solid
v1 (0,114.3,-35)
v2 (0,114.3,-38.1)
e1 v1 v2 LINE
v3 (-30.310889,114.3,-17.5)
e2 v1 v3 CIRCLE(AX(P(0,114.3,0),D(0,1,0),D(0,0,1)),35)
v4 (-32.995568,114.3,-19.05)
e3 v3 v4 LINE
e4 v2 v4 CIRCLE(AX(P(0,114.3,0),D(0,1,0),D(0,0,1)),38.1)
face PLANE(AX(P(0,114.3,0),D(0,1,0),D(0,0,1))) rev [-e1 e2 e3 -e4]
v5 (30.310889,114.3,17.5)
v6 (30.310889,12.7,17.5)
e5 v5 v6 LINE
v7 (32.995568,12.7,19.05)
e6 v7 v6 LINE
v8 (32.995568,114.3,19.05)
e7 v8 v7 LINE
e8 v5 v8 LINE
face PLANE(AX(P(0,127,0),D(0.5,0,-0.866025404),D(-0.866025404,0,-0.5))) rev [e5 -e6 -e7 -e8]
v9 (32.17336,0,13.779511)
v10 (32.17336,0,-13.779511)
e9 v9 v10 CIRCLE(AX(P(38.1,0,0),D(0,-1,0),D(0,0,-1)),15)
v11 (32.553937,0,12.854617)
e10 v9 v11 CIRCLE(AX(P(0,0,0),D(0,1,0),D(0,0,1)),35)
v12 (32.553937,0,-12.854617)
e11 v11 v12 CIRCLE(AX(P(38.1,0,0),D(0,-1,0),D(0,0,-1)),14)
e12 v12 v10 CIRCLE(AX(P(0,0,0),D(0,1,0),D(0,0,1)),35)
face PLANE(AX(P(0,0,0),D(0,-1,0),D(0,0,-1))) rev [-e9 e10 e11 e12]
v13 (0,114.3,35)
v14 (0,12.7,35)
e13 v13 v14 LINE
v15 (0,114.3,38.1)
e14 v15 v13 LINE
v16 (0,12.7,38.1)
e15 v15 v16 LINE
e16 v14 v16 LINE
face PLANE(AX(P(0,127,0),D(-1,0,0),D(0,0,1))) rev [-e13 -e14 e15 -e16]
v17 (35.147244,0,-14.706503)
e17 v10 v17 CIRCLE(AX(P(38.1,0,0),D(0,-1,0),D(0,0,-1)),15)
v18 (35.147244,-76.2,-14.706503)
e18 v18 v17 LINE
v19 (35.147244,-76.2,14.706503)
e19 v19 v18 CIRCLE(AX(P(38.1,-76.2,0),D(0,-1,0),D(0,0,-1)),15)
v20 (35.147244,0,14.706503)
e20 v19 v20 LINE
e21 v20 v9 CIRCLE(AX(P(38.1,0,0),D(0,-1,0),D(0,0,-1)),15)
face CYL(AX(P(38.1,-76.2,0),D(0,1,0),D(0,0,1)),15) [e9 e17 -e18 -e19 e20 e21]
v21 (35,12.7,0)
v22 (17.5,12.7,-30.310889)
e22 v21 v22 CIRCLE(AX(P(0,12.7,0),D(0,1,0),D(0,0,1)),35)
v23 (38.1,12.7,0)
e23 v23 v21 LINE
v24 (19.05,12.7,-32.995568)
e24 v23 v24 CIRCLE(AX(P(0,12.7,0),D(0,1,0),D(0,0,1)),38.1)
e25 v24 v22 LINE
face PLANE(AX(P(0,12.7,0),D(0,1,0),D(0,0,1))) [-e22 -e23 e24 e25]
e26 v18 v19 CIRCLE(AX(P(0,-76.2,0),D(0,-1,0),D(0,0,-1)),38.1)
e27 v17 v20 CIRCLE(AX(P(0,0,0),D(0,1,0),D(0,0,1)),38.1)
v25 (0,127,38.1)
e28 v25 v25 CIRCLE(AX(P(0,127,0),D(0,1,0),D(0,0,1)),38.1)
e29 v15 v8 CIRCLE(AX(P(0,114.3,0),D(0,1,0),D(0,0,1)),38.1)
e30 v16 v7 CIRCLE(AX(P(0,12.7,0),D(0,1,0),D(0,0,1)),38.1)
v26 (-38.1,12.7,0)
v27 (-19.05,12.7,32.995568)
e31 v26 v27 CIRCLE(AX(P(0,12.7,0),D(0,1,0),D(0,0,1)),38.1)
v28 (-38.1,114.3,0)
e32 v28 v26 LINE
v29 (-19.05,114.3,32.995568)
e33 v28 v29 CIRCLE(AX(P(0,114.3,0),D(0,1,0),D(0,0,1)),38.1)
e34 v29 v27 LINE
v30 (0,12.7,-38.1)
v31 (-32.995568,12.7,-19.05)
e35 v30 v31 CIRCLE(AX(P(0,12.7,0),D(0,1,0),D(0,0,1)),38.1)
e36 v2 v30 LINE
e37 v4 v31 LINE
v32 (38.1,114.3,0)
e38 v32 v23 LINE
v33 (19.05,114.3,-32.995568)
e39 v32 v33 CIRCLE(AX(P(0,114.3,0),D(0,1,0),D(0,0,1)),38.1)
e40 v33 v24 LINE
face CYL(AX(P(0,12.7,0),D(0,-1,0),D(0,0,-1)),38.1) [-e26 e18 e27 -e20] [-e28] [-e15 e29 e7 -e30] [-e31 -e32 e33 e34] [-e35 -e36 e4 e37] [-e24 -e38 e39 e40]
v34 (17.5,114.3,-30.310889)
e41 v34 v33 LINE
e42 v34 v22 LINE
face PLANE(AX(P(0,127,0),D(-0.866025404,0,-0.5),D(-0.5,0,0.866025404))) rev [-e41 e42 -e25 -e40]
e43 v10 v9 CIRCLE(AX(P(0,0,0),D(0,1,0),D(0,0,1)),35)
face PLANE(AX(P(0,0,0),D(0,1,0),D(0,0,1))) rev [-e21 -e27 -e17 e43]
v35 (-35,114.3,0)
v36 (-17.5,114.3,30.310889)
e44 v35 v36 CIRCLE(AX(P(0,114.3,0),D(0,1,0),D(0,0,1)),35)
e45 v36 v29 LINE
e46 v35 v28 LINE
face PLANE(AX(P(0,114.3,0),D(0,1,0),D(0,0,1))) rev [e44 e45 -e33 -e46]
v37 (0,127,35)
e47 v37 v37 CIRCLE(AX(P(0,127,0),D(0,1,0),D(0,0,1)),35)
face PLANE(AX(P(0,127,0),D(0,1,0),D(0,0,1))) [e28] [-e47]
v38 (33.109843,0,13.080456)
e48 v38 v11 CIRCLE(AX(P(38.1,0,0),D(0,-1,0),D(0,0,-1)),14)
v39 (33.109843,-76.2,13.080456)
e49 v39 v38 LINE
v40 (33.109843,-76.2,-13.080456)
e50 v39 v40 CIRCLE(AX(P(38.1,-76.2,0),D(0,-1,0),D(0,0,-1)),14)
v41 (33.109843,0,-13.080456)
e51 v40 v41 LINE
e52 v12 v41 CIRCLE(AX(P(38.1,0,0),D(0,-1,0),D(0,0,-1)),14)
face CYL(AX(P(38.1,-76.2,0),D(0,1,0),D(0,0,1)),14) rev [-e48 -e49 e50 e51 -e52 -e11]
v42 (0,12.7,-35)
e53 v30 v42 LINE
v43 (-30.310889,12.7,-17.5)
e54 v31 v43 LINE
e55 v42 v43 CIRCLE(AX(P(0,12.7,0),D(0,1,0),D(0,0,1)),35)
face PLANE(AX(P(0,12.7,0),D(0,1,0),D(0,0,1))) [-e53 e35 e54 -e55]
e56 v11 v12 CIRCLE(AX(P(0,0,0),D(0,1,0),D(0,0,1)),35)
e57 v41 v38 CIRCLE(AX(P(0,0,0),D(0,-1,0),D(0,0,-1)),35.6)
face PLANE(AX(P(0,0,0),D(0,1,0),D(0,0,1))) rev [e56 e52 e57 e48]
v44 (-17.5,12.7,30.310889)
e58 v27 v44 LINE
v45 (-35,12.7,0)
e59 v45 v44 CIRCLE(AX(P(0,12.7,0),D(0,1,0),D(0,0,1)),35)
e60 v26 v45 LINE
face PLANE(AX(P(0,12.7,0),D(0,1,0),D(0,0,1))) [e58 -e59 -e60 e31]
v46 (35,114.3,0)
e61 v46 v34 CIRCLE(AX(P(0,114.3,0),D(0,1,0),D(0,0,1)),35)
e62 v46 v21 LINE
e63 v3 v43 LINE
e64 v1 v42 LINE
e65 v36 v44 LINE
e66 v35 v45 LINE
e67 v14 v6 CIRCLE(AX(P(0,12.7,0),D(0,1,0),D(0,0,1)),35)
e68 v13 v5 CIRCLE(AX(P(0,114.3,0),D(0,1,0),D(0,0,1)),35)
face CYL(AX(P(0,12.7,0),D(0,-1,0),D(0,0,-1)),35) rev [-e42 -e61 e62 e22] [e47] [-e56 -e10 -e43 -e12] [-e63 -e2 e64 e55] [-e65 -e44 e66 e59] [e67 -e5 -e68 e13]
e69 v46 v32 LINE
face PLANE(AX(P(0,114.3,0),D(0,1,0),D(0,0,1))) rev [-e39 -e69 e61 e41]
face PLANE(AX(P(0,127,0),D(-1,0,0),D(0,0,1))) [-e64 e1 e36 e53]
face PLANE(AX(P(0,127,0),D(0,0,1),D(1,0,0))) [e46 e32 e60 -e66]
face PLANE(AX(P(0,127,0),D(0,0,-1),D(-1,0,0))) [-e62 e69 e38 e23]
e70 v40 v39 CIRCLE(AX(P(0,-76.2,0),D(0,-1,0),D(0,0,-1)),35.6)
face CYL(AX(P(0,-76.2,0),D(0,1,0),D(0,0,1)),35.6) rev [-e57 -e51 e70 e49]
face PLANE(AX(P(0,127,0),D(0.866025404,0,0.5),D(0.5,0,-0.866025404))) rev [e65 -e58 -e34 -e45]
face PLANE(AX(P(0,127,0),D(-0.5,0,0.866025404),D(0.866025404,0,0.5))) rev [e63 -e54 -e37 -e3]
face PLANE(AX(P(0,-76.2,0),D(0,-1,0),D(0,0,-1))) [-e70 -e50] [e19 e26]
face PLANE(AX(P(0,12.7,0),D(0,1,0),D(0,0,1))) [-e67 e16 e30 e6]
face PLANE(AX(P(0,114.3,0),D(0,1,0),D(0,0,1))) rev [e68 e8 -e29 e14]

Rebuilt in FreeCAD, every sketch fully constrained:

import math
import FreeCAD as App
import Part
import Sketcher
from FreeCAD import Vector
Q = App.Units.Quantity

doc = App.newDocument("Part")
body = doc.addObject("PartDesign::Body", "Body")

# Sketch on XZ plane
sketch1 = body.newObject("Sketcher::SketchObject", "Sketch")
sketch1.AttachmentSupport = (doc.getObject("XZ_Plane"), [""])
sketch1.MapMode = "FlatFace"
sketch1.addGeometry(Part.ArcOfCircle(Part.Circle(Vector(0, 0, 0), Vector(0, 0, 1), 38), math.radians(120), math.radians(180)), False)
sketch1.addGeometry(Part.ArcOfCircle(Part.Circle(Vector(0, 0, 0), Vector(0, 0, 1), 38), math.radians(90), math.radians(120)), False)
sketch1.addGeometry(Part.ArcOfCircle(Part.Circle(Vector(0, 0, 0), Vector(0, 0, 1), 38), math.radians(30), math.radians(90)), False)
sketch1.addGeometry(Part.ArcOfCircle(Part.Circle(Vector(0, 0, 0), Vector(0, 0, 1), 38), math.radians(0), math.radians(30)), False)
sketch1.addGeometry(Part.ArcOfCircle(Part.Circle(Vector(0, 0, 0), Vector(0, 0, 1), 38), math.radians(-60), math.radians(0)), False)
sketch1.addGeometry(Part.ArcOfCircle(Part.Circle(Vector(0, 0, 0), Vector(0, 0, 1), 38), math.radians(-90), math.radians(-60)), False)
sketch1.addGeometry(Part.ArcOfCircle(Part.Circle(Vector(0, 0, 0), Vector(0, 0, 1), 38), math.radians(-150), math.radians(-90)), False)
sketch1.addGeometry(Part.ArcOfCircle(Part.Circle(Vector(0, 0, 0), Vector(0, 0, 1), 38), math.radians(180), math.radians(210)), False)
sketch1.addGeometry(Part.ArcOfCircle(Part.Circle(Vector(0, 0, 0), Vector(0, 0, 1), 35), math.radians(-60), math.radians(0)), False)
sketch1.addGeometry(Part.ArcOfCircle(Part.Circle(Vector(0, 0, 0), Vector(0, 0, 1), 35), math.radians(0), math.radians(30)), False)
sketch1.addGeometry(Part.ArcOfCircle(Part.Circle(Vector(0, 0, 0), Vector(0, 0, 1), 35), math.radians(30), math.radians(90)), False)
sketch1.addGeometry(Part.ArcOfCircle(Part.Circle(Vector(0, 0, 0), Vector(0, 0, 1), 35), math.radians(90), math.radians(120)), False)
sketch1.addGeometry(Part.ArcOfCircle(Part.Circle(Vector(0, 0, 0), Vector(0, 0, 1), 35), math.radians(120), math.radians(180)), False)
sketch1.addGeometry(Part.ArcOfCircle(Part.Circle(Vector(0, 0, 0), Vector(0, 0, 1), 35), math.radians(180), math.radians(210)), False)
sketch1.addGeometry(Part.ArcOfCircle(Part.Circle(Vector(0, 0, 0), Vector(0, 0, 1), 35), math.radians(-150), math.radians(-90)), False)
sketch1.addGeometry(Part.ArcOfCircle(Part.Circle(Vector(0, 0, 0), Vector(0, 0, 1), 35), math.radians(-90), math.radians(-60)), False)
sketch1.addConstraint(Sketcher.Constraint("Tangent", 0, 1, 1, 2))
sketch1.addConstraint(Sketcher.Constraint("Tangent", 1, 1, 2, 2))
sketch1.addConstraint(Sketcher.Constraint("Tangent", 2, 1, 3, 2))
sketch1.addConstraint(Sketcher.Constraint("Tangent", 3, 1, 4, 2))
sketch1.addConstraint(Sketcher.Constraint("Tangent", 4, 1, 5, 2))
sketch1.addConstraint(Sketcher.Constraint("Tangent", 5, 1, 6, 2))
sketch1.addConstraint(Sketcher.Constraint("Tangent", 6, 1, 7, 2))
sketch1.addConstraint(Sketcher.Constraint("Tangent", 7, 1, 0, 2))
sketch1.addConstraint(Sketcher.Constraint("Tangent", 8, 2, 9, 1))
sketch1.addConstraint(Sketcher.Constraint("Tangent", 9, 2, 10, 1))
sketch1.addConstraint(Sketcher.Constraint("Tangent", 10, 2, 11, 1))
sketch1.addConstraint(Sketcher.Constraint("Tangent", 11, 2, 12, 1))
sketch1.addConstraint(Sketcher.Constraint("Tangent", 12, 2, 13, 1))
sketch1.addConstraint(Sketcher.Constraint("Tangent", 13, 2, 14, 1))
sketch1.addConstraint(Sketcher.Constraint("Tangent", 14, 2, 15, 1))
sketch1.addConstraint(Sketcher.Constraint("Tangent", 15, 2, 8, 1))
sketch1.addConstraint(Sketcher.Constraint("Coincident", 0, 3, -1, 1))
sketch1.addConstraint(Sketcher.Constraint("Coincident", 2, 3, -1, 1))
sketch1.addConstraint(Sketcher.Constraint("Coincident", 4, 3, -1, 1))
sketch1.addConstraint(Sketcher.Constraint("Coincident", 8, 3, -1, 1))
sketch1.addConstraint(Sketcher.Constraint("Coincident", 10, 3, -1, 1))
sketch1.addConstraint(Sketcher.Constraint("Coincident", 12, 3, -1, 1))
sketch1.addConstraint(Sketcher.Constraint("Equal", 4, 5))
sketch1.addConstraint(Sketcher.Constraint("Equal", 12, 13))
sketch1.addConstraint(Sketcher.Constraint("PointOnObject", 1, 1, -2))
sketch1.addConstraint(Sketcher.Constraint("PointOnObject", 3, 1, -1))
sketch1.addConstraint(Sketcher.Constraint("PointOnObject", 5, 1, -2))
sketch1.addConstraint(Sketcher.Constraint("PointOnObject", 7, 1, -1))
sketch1.addConstraint(Sketcher.Constraint("PointOnObject", 8, 2, -1))
sketch1.addConstraint(Sketcher.Constraint("PointOnObject", 10, 2, -2))
sketch1.addConstraint(Sketcher.Constraint("PointOnObject", 12, 2, -1))
sketch1.addConstraint(Sketcher.Constraint("PointOnObject", 14, 2, -2))
sketch1.addConstraint(Sketcher.Constraint("Radius", 8, Q("35 mm")))
sketch1.addConstraint(Sketcher.Constraint("Radius", 0, Q("38.1 mm")))
sketch1.addConstraint(Sketcher.Constraint("DistanceY", -1, 1, 9, 2, Q("17.5 mm")))
sketch1.addConstraint(Sketcher.Constraint("DistanceX", 11, 2, -1, 1, Q("17.5 mm")))
sketch1.addConstraint(Sketcher.Constraint("DistanceY", 13, 2, -1, 1, Q("17.5 mm")))
sketch1.addConstraint(Sketcher.Constraint("DistanceX", -1, 1, 15, 2, Q("17.5 mm")))
sketch1.addConstraint(Sketcher.Constraint("DistanceX", 0, 1, -1, 1, Q("19.05 mm")))
sketch1.addConstraint(Sketcher.Constraint("DistanceY", -1, 1, 2, 1, Q("19.05 mm")))
sketch1.addConstraint(Sketcher.Constraint("DistanceX", -1, 1, 4, 1, Q("19.05 mm")))
sketch1.addConstraint(Sketcher.Constraint("DistanceY", 6, 1, -1, 1, Q("19.05 mm")))
pad1 = body.newObject("PartDesign::Pad", "Pad")
pad1.Profile = sketch1
pad1.Length = 12.7
pad1.Reversed = True

# Sketch on XZ plane
sketch2 = body.newObject("Sketcher::SketchObject", "Sketch001")
sketch2.AttachmentSupport = (doc.getObject("XZ_Plane"), [""])
sketch2.MapMode = "FlatFace"
sketch2.addGeometry(Part.ArcOfCircle(Part.Circle(Vector(0, 0, 0), Vector(0, 0, 1), 38.1), math.radians(90), math.radians(120)), False)
sketch2.addGeometry(Part.LineSegment(Vector(0, 38.1, 0), Vector(0, 35, 0)), False)
sketch2.addGeometry(Part.ArcOfCircle(Part.Circle(Vector(0, 0, 0), Vector(0, 0, 1), 35), math.radians(90), math.radians(120)), False)
sketch2.addGeometry(Part.LineSegment(Vector(-17.5, 30.3, 0), Vector(-19.1, 33, 0)), False)
sketch2.addGeometry(Part.LineSegment(Vector(30.3, 17.5, 0), Vector(33, 19.1, 0)), False)
sketch2.addGeometry(Part.ArcOfCircle(Part.Circle(Vector(0, 0, 0), Vector(0, 0, 1), 38.1), math.radians(0), math.radians(30)), False)
sketch2.addGeometry(Part.LineSegment(Vector(38.1, 0, 0), Vector(35, 0, 0)), False)
sketch2.addGeometry(Part.ArcOfCircle(Part.Circle(Vector(0, 0, 0), Vector(0, 0, 1), 35), math.radians(0), math.radians(30)), False)
sketch2.addGeometry(Part.LineSegment(Vector(17.5, -30.3, 0), Vector(19.1, -33, 0)), False)
sketch2.addGeometry(Part.ArcOfCircle(Part.Circle(Vector(0, 0, 0), Vector(0, 0, 1), 38.1), math.radians(-90), math.radians(-60)), False)
sketch2.addGeometry(Part.LineSegment(Vector(0, -38.1, 0), Vector(0, -35, 0)), False)
sketch2.addGeometry(Part.ArcOfCircle(Part.Circle(Vector(0, 0, 0), Vector(0, 0, 1), 35), math.radians(-90), math.radians(-60)), False)
sketch2.addGeometry(Part.ArcOfCircle(Part.Circle(Vector(0, 0, 0), Vector(0, 0, 1), 38.1), math.radians(180), math.radians(210)), False)
sketch2.addGeometry(Part.LineSegment(Vector(-38.1, 0, 0), Vector(-35, 0, 0)), False)
sketch2.addGeometry(Part.ArcOfCircle(Part.Circle(Vector(0, 0, 0), Vector(0, 0, 1), 35), math.radians(180), math.radians(210)), False)
sketch2.addGeometry(Part.LineSegment(Vector(-30.3, -17.5, 0), Vector(-33, -19.1, 0)), False)
sketch2.addConstraint(Sketcher.Constraint("Coincident", 0, 1, 1, 1))
sketch2.addConstraint(Sketcher.Constraint("Coincident", 1, 2, 2, 1))
sketch2.addConstraint(Sketcher.Constraint("Coincident", 2, 2, 3, 1))
sketch2.addConstraint(Sketcher.Constraint("Coincident", 3, 2, 0, 2))
sketch2.addConstraint(Sketcher.Constraint("Coincident", 4, 2, 5, 2))
sketch2.addConstraint(Sketcher.Constraint("Coincident", 5, 1, 6, 1))
sketch2.addConstraint(Sketcher.Constraint("Coincident", 6, 2, 7, 1))
sketch2.addConstraint(Sketcher.Constraint("Coincident", 7, 2, 4, 1))
sketch2.addConstraint(Sketcher.Constraint("Coincident", 8, 2, 9, 2))
sketch2.addConstraint(Sketcher.Constraint("Coincident", 9, 1, 10, 1))
sketch2.addConstraint(Sketcher.Constraint("Coincident", 10, 2, 11, 1))
sketch2.addConstraint(Sketcher.Constraint("Coincident", 11, 2, 8, 1))
sketch2.addConstraint(Sketcher.Constraint("Coincident", 12, 1, 13, 1))
sketch2.addConstraint(Sketcher.Constraint("Coincident", 13, 2, 14, 1))
sketch2.addConstraint(Sketcher.Constraint("Coincident", 14, 2, 15, 1))
sketch2.addConstraint(Sketcher.Constraint("Coincident", 15, 2, 12, 2))
sketch2.addConstraint(Sketcher.Constraint("Vertical", 1))
sketch2.addConstraint(Sketcher.Constraint("Horizontal", 6))
sketch2.addConstraint(Sketcher.Constraint("Vertical", 10))
sketch2.addConstraint(Sketcher.Constraint("Horizontal", 13))
sketch2.addConstraint(Sketcher.Constraint("Coincident", 0, 3, -1, 1))
sketch2.addConstraint(Sketcher.Constraint("Coincident", 2, 3, -1, 1))
sketch2.addConstraint(Sketcher.Constraint("Coincident", 5, 3, -1, 1))
sketch2.addConstraint(Sketcher.Constraint("Coincident", 7, 3, -1, 1))
sketch2.addConstraint(Sketcher.Constraint("Coincident", 9, 3, -1, 1))
sketch2.addConstraint(Sketcher.Constraint("Coincident", 11, 3, -1, 1))
sketch2.addConstraint(Sketcher.Constraint("Coincident", 12, 3, -1, 1))
sketch2.addConstraint(Sketcher.Constraint("Coincident", 14, 3, -1, 1))
sketch2.addConstraint(Sketcher.Constraint("Equal", 0, 5))
sketch2.addConstraint(Sketcher.Constraint("Equal", 2, 7))
sketch2.addConstraint(Sketcher.Constraint("Equal", 5, 9))
sketch2.addConstraint(Sketcher.Constraint("Equal", 7, 11))
sketch2.addConstraint(Sketcher.Constraint("Equal", 9, 12))
sketch2.addConstraint(Sketcher.Constraint("Equal", 11, 14))
sketch2.addConstraint(Sketcher.Constraint("PointOnObject", 0, 1, -2))
sketch2.addConstraint(Sketcher.Constraint("PointOnObject", 5, 1, -1))
sketch2.addConstraint(Sketcher.Constraint("PointOnObject", 9, 1, -2))
sketch2.addConstraint(Sketcher.Constraint("PointOnObject", 12, 1, -1))
sketch2.addConstraint(Sketcher.Constraint("Perpendicular", 3, 4))
sketch2.addConstraint(Sketcher.Constraint("Perpendicular", 4, 8))
sketch2.addConstraint(Sketcher.Constraint("Perpendicular", 8, 15))
sketch2.addConstraint(Sketcher.Constraint("Radius", 2, Q("35 mm")))
sketch2.addConstraint(Sketcher.Constraint("Radius", 0, Q("38.1 mm")))
sketch2.addConstraint(Sketcher.Constraint("Angle", 3, Q("120 deg")))
sketch2.addConstraint(Sketcher.Constraint("DistanceX", 2, 2, -1, 1, Q("17.5 mm")))
sketch2.addConstraint(Sketcher.Constraint("DistanceY", -1, 1, 7, 2, Q("17.5 mm")))
sketch2.addConstraint(Sketcher.Constraint("DistanceX", -1, 1, 11, 2, Q("17.5 mm")))
sketch2.addConstraint(Sketcher.Constraint("DistanceY", 14, 2, -1, 1, Q("17.5 mm")))
pad2 = body.newObject("PartDesign::Pad", "Pad001")
pad2.Profile = sketch2
pad2.Length = 127
pad2.Reversed = True

# Sketch on XZ plane
sketch3 = body.newObject("Sketcher::SketchObject", "Sketch002")
sketch3.AttachmentSupport = (doc.getObject("XZ_Plane"), [""])
sketch3.MapMode = "FlatFace"
sketch3.AttachmentOffset = App.Placement(Vector(0, 0, -114.3), App.Rotation())
sketch3.addGeometry(Part.Circle(Vector(0, 0, 0), Vector(0, 0, 1), 38), False)
sketch3.addGeometry(Part.Circle(Vector(0, 0, 0), Vector(0, 0, 1), 35), False)
sketch3.addConstraint(Sketcher.Constraint("Coincident", 0, 3, -1, 1))
sketch3.addConstraint(Sketcher.Constraint("Coincident", 1, 3, -1, 1))
sketch3.addConstraint(Sketcher.Constraint("Diameter", 1, Q("70 mm")))
sketch3.addConstraint(Sketcher.Constraint("Diameter", 0, Q("76.2 mm")))
pad3 = body.newObject("PartDesign::Pad", "Pad002")
pad3.Profile = sketch3
pad3.Length = 12.7
pad3.Reversed = True

# Sketch on XZ plane
sketch4 = body.newObject("Sketcher::SketchObject", "Sketch003")
sketch4.AttachmentSupport = (doc.getObject("XZ_Plane"), [""])
sketch4.MapMode = "FlatFace"
sketch4.AttachmentOffset = App.Placement(Vector(0, 0, 76.2), App.Rotation())
sketch4.addGeometry(Part.ArcOfCircle(Part.Circle(Vector(38, 0, 0), Vector(0, 0, 1), 15), math.radians(101), math.radians(259)), False)
sketch4.addGeometry(Part.ArcOfCircle(Part.Circle(Vector(0, 0, 0), Vector(0, 0, 1), 38), math.radians(-23), math.radians(23)), False)
sketch4.addGeometry(Part.ArcOfCircle(Part.Circle(Vector(38, 0, 0), Vector(0, 0, 1), 14), math.radians(111), math.radians(249)), False)
sketch4.addGeometry(Part.ArcOfCircle(Part.Circle(Vector(0, 0, 0), Vector(0, 0, 1), 36), math.radians(-22), math.radians(22)), False)
sketch4.addConstraint(Sketcher.Constraint("Coincident", 0, 1, 1, 2))
sketch4.addConstraint(Sketcher.Constraint("Coincident", 1, 1, 0, 2))
sketch4.addConstraint(Sketcher.Constraint("Coincident", 2, 1, 3, 2))
sketch4.addConstraint(Sketcher.Constraint("Coincident", 3, 1, 2, 2))
sketch4.addConstraint(Sketcher.Constraint("Coincident", 1, 3, -1, 1))
sketch4.addConstraint(Sketcher.Constraint("Coincident", 3, 3, -1, 1))
sketch4.addConstraint(Sketcher.Constraint("Coincident", 2, 3, 0, 3))
sketch4.addConstraint(Sketcher.Constraint("PointOnObject", 0, 3, -1))
sketch4.addConstraint(Sketcher.Constraint("Radius", 0, Q("15 mm")))
sketch4.addConstraint(Sketcher.Constraint("Radius", 2, Q("14 mm")))
sketch4.addConstraint(Sketcher.Constraint("Radius", 1, Q("38.1 mm")))
sketch4.addConstraint(Sketcher.Constraint("Radius", 3, Q("35.6 mm")))
sketch4.addConstraint(Sketcher.Constraint("DistanceX", -1, 1, 0, 3, Q("38.1 mm")))
pad4 = body.newObject("PartDesign::Pad", "Pad003")
pad4.Profile = sketch4
pad4.Length = 76.2
pad4.Reversed = True

doc.recompute()
